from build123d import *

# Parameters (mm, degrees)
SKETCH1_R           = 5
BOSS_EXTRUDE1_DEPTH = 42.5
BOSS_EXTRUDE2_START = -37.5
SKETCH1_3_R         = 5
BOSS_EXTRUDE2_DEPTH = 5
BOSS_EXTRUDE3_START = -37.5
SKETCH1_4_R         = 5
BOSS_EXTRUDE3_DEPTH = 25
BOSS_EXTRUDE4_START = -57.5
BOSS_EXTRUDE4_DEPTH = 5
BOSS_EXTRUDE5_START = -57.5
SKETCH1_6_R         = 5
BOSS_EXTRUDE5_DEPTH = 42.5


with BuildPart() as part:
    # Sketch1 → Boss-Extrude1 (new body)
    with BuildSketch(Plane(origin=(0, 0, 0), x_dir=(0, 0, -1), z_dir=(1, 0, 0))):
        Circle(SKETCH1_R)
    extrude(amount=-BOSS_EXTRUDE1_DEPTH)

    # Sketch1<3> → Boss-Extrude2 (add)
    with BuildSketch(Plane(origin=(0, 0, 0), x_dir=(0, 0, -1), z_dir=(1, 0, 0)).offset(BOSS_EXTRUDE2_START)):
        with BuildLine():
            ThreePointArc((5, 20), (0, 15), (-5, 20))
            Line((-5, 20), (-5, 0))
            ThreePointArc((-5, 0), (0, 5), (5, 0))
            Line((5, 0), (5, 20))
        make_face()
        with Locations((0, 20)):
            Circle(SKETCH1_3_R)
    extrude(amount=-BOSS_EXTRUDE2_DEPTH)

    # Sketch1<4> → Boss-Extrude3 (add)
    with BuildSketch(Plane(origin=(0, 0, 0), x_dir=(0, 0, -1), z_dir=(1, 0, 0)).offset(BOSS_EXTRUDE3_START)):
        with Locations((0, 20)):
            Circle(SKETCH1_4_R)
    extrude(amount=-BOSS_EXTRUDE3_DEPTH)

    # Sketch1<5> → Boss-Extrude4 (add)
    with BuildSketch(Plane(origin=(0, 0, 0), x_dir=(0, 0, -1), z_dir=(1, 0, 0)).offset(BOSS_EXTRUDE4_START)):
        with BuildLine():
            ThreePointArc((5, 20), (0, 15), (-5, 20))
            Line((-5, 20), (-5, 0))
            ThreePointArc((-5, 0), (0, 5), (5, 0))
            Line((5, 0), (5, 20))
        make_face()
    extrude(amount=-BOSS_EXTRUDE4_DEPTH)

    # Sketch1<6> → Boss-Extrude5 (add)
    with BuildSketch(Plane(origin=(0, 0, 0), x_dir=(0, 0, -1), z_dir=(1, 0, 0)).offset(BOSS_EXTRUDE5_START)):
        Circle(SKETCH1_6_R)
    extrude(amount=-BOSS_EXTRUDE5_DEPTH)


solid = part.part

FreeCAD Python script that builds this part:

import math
import FreeCAD as App
import Part
import Sketcher

V = App.Vector
Q = App.Units.Quantity

doc = App.newDocument("Part")
body = doc.addObject("PartDesign::Body", "Body")

# Sketch on YZ plane
sketch1 = body.newObject("Sketcher::SketchObject", "Sketch")
sketch1.AttachmentSupport = (doc.getObject("YZ_Plane"), [""])
sketch1.MapMode = "FlatFace"
sketch1.addGeometry(Part.Circle(V(0, 0, 0), V(0, 0, 1), 5), False)
sketch1.addConstraint([
    Sketcher.Constraint("Coincident", 0, 3, -1, 1),
    Sketcher.Constraint("Diameter", 0, Q("10 mm")),
])
pad1 = body.newObject("PartDesign::Pad", "Pad")
pad1.Profile = sketch1
pad1.Length = 42.5
pad1.Reversed = True

# Sketch on YZ plane
sketch2 = body.newObject("Sketcher::SketchObject", "Sketch001")
sketch2.AttachmentSupport = (doc.getObject("YZ_Plane"), [""])
sketch2.MapMode = "FlatFace"
sketch2.AttachmentOffset = App.Placement(V(0, 0, -37.5), App.Rotation())
sketch2.addGeometry([
    Part.LineSegment(V(20, 5, 0), V(0, 5, 0)),
    Part.ArcOfCircle(Part.Circle(V(0, 0, 0), V(0, 0, 1), 5), math.radians(-90), math.radians(90)),
    Part.LineSegment(V(0, -5, 0), V(20, -5, 0)),
    Part.ArcOfCircle(Part.Circle(V(20, 0, 0), V(0, 0, 1), 5), math.radians(-90), math.radians(90)),
], False)
sketch2.addConstraint([
    Sketcher.Constraint("Tangent", 0, 2, 1, 2),
    Sketcher.Constraint("Tangent", 1, 1, 2, 1),
    Sketcher.Constraint("Tangent", 2, 2, 3, 1),
    Sketcher.Constraint("Tangent", 3, 2, 0, 1),
    Sketcher.Constraint("Horizontal", 0),
    Sketcher.Constraint("Horizontal", 2),
    Sketcher.Constraint("Coincident", 1, 3, -1, 1),
    Sketcher.Constraint("Radius", 1, Q("5 mm")),
    Sketcher.Constraint("DistanceX", 0, 2, 0, 1, Q("20 mm")),
])
pad2 = body.newObject("PartDesign::Pad", "Pad001")
pad2.Profile = sketch2
pad2.Length = 5
pad2.Reversed = True

# Sketch on YZ plane
sketch3 = body.newObject("Sketcher::SketchObject", "Sketch002")
sketch3.AttachmentSupport = (doc.getObject("YZ_Plane"), [""])
sketch3.MapMode = "FlatFace"
sketch3.AttachmentOffset = App.Placement(V(0, 0, -37.5), App.Rotation())
sketch3.addGeometry(Part.Circle(V(20, 0, 0), V(0, 0, 1), 5), False)
sketch3.addConstraint([
    Sketcher.Constraint("PointOnObject", 0, 3, -1),
    Sketcher.Constraint("Diameter", 0, Q("10 mm")),
    Sketcher.Constraint("DistanceX", -1, 1, 0, 3, Q("20 mm")),
])
pad3 = body.newObject("PartDesign::Pad", "Pad002")
pad3.Profile = sketch3
pad3.Length = 25
pad3.Reversed = True

# Sketch on YZ plane
sketch4 = body.newObject("Sketcher::SketchObject", "Sketch003")
sketch4.AttachmentSupport = (doc.getObject("YZ_Plane"), [""])
sketch4.MapMode = "FlatFace"
sketch4.AttachmentOffset = App.Placement(V(0, 0, -57.5), App.Rotation())
sketch4.addGeometry([
    Part.ArcOfCircle(Part.Circle(V(20, 0, 0), V(0, 0, 1), 5), math.radians(90), math.radians(270)),
    Part.LineSegment(V(20, 5, 0), V(0, 5, 0)),
    Part.ArcOfCircle(Part.Circle(V(0, 0, 0), V(0, 0, 1), 5), math.radians(-90), math.radians(90)),
    Part.LineSegment(V(0, -5, 0), V(20, -5, 0)),
], False)
sketch4.addConstraint([
    Sketcher.Constraint("Tangent", 0, 1, 1, 1),
    Sketcher.Constraint("Tangent", 1, 2, 2, 2),
    Sketcher.Constraint("Tangent", 2, 1, 3, 1),
    Sketcher.Constraint("Tangent", 3, 2, 0, 2),
    Sketcher.Constraint("Horizontal", 1),
    Sketcher.Constraint("Horizontal", 3),
    Sketcher.Constraint("Coincident", 2, 3, -1, 1),
    Sketcher.Constraint("Radius", 0, Q("5 mm")),
    Sketcher.Constraint("DistanceX", 1, 2, 1, 1, Q("20 mm")),
])
pad4 = body.newObject("PartDesign::Pad", "Pad003")
pad4.Profile = sketch4
pad4.Length = 5
pad4.Reversed = True

# Sketch on YZ plane
sketch5 = body.newObject("Sketcher::SketchObject", "Sketch004")
sketch5.AttachmentSupport = (doc.getObject("YZ_Plane"), [""])
sketch5.MapMode = "FlatFace"
sketch5.AttachmentOffset = App.Placement(V(0, 0, -57.5), App.Rotation())
sketch5.addGeometry(Part.Circle(V(0, 0, 0), V(0, 0, 1), 5), False)
sketch5.addConstraint([
    Sketcher.Constraint("Coincident", 0, 3, -1, 1),
    Sketcher.Constraint("Diameter", 0, Q("10 mm")),
])
pad5 = body.newObject("PartDesign::Pad", "Pad004")
pad5.Profile = sketch5
pad5.Length = 42.5
pad5.Reversed = True

doc.recompute()
